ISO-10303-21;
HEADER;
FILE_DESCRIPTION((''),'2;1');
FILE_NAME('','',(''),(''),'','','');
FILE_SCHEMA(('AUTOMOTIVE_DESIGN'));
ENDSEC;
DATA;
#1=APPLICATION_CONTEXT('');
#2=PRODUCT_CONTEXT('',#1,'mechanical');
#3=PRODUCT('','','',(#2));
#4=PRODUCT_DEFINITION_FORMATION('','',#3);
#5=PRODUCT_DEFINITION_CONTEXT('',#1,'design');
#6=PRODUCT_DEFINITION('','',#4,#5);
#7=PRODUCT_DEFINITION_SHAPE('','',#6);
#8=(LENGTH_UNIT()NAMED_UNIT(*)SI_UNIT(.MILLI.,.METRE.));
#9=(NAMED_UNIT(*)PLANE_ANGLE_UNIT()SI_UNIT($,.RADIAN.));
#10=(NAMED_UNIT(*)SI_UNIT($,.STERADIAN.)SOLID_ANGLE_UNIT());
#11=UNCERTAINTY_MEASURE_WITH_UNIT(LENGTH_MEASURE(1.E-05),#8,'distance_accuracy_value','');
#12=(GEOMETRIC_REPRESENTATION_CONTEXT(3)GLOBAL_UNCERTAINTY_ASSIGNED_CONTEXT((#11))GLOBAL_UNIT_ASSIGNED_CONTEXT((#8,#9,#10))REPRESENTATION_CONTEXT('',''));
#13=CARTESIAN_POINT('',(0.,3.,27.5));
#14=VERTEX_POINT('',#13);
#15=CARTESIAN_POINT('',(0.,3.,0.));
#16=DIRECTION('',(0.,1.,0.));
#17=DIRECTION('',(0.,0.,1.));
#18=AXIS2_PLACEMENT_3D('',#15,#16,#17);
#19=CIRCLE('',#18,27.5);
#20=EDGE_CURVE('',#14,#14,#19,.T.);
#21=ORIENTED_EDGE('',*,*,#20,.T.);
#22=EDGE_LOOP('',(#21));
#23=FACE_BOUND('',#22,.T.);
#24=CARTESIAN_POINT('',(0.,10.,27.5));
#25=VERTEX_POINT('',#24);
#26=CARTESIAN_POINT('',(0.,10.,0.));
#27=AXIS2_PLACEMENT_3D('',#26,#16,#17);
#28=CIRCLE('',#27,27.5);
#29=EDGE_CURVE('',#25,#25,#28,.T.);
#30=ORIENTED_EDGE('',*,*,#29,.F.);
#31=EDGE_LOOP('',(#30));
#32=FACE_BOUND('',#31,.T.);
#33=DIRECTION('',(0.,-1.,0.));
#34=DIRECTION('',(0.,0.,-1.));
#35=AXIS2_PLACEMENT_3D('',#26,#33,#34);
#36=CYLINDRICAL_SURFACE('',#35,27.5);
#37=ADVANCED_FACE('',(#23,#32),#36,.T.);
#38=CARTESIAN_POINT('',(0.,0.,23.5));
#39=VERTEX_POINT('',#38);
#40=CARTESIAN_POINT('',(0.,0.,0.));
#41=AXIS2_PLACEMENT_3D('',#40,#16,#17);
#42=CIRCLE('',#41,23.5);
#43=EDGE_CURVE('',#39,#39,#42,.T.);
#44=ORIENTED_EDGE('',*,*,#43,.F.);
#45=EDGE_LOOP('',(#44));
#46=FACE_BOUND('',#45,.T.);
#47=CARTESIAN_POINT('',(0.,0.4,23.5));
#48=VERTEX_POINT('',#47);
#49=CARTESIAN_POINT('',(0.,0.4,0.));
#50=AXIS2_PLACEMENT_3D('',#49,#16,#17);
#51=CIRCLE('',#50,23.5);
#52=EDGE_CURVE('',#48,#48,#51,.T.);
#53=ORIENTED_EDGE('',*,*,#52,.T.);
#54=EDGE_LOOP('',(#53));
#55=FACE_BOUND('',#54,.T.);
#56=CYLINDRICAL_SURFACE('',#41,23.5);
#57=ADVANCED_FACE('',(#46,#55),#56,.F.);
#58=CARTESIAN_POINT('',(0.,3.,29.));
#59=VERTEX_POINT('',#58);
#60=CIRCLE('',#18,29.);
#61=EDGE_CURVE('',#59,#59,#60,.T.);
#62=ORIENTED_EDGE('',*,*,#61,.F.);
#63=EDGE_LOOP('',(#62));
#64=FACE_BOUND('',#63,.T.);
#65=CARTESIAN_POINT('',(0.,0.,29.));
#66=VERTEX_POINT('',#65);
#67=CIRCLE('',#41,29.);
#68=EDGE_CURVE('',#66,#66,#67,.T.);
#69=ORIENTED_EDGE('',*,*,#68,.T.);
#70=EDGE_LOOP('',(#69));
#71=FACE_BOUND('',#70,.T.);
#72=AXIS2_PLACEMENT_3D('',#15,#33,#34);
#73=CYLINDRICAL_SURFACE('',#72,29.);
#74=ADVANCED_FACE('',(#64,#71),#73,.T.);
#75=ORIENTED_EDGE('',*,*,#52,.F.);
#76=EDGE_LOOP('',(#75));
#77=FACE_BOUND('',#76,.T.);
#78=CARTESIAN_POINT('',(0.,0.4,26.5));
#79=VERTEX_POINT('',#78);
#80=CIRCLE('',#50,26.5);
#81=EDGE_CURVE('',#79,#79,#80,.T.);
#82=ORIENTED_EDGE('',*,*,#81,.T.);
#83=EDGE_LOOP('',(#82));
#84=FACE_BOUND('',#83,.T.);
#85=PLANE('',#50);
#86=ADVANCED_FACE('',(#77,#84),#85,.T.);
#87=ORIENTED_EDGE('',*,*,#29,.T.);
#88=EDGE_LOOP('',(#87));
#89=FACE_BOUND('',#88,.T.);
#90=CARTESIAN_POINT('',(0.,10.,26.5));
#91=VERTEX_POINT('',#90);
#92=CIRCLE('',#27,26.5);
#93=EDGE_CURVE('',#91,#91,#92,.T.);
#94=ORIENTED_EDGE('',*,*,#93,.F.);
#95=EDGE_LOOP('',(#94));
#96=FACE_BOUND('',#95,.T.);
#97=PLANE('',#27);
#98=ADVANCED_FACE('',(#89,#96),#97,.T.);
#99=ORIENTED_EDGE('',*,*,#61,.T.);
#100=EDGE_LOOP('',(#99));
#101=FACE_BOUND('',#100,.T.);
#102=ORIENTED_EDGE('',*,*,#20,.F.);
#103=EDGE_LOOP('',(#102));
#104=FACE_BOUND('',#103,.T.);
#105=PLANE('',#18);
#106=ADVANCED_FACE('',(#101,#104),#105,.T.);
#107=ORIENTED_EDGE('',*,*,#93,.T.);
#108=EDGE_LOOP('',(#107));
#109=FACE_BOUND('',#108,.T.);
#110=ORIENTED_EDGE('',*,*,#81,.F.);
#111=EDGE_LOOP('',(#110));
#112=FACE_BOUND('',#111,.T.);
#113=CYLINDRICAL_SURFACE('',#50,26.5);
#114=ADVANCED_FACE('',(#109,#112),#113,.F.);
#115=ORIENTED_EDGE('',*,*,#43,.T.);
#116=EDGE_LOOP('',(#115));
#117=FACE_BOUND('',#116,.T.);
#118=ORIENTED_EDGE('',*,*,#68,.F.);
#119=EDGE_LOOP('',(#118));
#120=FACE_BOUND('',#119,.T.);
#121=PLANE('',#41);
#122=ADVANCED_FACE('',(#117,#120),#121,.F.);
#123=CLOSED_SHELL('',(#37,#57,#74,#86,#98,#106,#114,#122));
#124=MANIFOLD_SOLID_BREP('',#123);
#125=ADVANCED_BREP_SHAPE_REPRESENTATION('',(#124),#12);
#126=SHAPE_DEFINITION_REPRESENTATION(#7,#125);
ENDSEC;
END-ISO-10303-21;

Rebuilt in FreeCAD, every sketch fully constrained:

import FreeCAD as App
import Part
import Sketcher

doc = App.newDocument("Part")
body = doc.addObject("PartDesign::Body", "Body")

sketch1 = doc.addObject("Sketcher::SketchObject", "Sketch")
body.addObject(sketch1)
sketch1.AttachmentSupport = (doc.XZ_Plane, [""])
sketch1.MapMode = "FlatFace"
sketch1.addGeometry(Part.Circle(App.Vector(0, 0, 0), App.Vector(0, 0, 1), 28), False)
sketch1.addConstraint(Sketcher.Constraint("Coincident", 0, 3, -1, 1))
sketch1.addConstraint(Sketcher.Constraint("Diameter", 0, 55.0))
pad1 = doc.addObject("PartDesign::Pad", "Pad")
body.addObject(pad1)
pad1.Profile = sketch1
pad1.Length = 10
pad1.Reversed = True

sketch2 = doc.addObject("Sketcher::SketchObject", "Sketch001")
body.addObject(sketch2)
sketch2.AttachmentSupport = (doc.XZ_Plane, [""])
sketch2.MapMode = "FlatFace"
sketch2.addGeometry(Part.Circle(App.Vector(0, 0, 0), App.Vector(0, 0, 1), 29), False)
sketch2.addGeometry(Part.Circle(App.Vector(0, 0, 0), App.Vector(0, 0, 1), 24), False)
sketch2.addConstraint(Sketcher.Constraint("Coincident", 0, 3, -1, 1))
sketch2.addConstraint(Sketcher.Constraint("Coincident", 1, 3, -1, 1))
sketch2.addConstraint(Sketcher.Constraint("Diameter", 0, 58.0))
sketch2.addConstraint(Sketcher.Constraint("Diameter", 1, 48.0))
pad2 = doc.addObject("PartDesign::Pad", "Pad001")
body.addObject(pad2)
pad2.Profile = sketch2
pad2.Length = 3
pad2.Reversed = True

sketch3 = doc.addObject("Sketcher::SketchObject", "Sketch002")
body.addObject(sketch3)
sketch3.AttachmentSupport = (doc.XZ_Plane, [""])
sketch3.MapMode = "FlatFace"
sketch3.AttachmentOffset = App.Placement(App.Vector(0, 0, -10), App.Rotation())
sketch3.addGeometry(Part.Circle(App.Vector(0, 0, 0), App.Vector(0, 0, 1), 26), False)
sketch3.addConstraint(Sketcher.Constraint("Coincident", 0, 3, -1, 1))
sketch3.addConstraint(Sketcher.Constraint("Diameter", 0, 53.0))
pocket1 = doc.addObject("PartDesign::Pocket", "Pocket")
body.addObject(pocket1)
pocket1.Profile = sketch3
pocket1.Length = 9.6
pocket1.Reversed = True

sketch4 = doc.addObject("Sketcher::SketchObject", "Sketch003")
body.addObject(sketch4)
sketch4.AttachmentSupport = (doc.XZ_Plane, [""])
sketch4.MapMode = "FlatFace"
sketch4.AttachmentOffset = App.Placement(App.Vector(0, 0, -0.4), App.Rotation())
sketch4.addGeometry(Part.Circle(App.Vector(0, 0, 0), App.Vector(0, 0, 1), 24), False)
sketch4.addConstraint(Sketcher.Constraint("Coincident", 0, 3, -1, 1))
sketch4.addConstraint(Sketcher.Constraint("Diameter", 0, 47.0))
pocket2 = doc.addObject("PartDesign::Pocket", "Pocket001")
body.addObject(pocket2)
pocket2.Profile = sketch4
pocket2.Type = "ThroughAll"
pocket2.Reversed = True

doc.recompute()
